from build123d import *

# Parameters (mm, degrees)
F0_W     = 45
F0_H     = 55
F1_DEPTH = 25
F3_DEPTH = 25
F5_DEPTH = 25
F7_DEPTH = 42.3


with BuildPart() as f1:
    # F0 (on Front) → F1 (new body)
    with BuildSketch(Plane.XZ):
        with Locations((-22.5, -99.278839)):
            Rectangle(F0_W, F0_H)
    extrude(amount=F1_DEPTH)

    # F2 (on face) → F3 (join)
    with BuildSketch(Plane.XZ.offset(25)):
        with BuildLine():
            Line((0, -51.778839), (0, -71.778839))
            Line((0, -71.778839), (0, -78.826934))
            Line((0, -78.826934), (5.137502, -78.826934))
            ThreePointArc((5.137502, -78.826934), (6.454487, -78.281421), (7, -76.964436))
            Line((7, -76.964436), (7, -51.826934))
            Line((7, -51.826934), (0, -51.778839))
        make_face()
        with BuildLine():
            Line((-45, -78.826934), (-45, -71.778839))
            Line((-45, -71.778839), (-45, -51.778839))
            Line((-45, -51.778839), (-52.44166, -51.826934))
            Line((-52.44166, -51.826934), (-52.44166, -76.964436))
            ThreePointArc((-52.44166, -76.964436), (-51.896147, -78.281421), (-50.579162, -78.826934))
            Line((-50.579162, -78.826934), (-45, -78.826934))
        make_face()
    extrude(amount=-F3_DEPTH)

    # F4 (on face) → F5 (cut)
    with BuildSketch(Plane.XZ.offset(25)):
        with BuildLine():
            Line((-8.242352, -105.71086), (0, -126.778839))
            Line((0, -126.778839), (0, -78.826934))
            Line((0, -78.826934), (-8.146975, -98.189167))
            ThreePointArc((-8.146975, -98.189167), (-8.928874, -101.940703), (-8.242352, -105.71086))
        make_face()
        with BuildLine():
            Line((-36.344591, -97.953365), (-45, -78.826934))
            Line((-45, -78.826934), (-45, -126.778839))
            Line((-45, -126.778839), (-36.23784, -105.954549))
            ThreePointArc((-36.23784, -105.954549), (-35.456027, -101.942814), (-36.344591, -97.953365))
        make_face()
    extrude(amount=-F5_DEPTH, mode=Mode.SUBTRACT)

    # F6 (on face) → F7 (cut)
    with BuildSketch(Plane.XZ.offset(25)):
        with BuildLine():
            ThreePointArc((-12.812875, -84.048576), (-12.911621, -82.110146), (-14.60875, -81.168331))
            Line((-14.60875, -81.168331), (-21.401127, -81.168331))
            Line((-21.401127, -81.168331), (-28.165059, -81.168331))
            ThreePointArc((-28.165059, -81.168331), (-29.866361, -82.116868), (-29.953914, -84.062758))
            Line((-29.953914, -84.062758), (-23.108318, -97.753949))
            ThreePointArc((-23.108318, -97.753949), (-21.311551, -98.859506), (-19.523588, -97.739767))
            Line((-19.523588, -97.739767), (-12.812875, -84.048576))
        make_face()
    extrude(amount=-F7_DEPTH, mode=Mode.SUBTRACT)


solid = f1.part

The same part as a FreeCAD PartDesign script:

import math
import FreeCAD as App
import Part
import Sketcher

doc = App.newDocument("Part")
params = doc.addObject("Spreadsheet::Sheet", "Params")
for row, (alias, value) in enumerate([
    ("sketch1_width", "45 mm"),
    ("sketch1_height", "55 mm"),
    ("pad1_length", "25 mm"),
    ("pad2_length", "25 mm"),
    ("sketch3_radius", "10.000001 mm"),
    ("pocket1_length", "25 mm"),
    ("sketch4_radius", "1.999999 mm"),
    ("pocket2_length", "42.3 mm"),
], start=1):
    params.set(f"A{row}", alias)
    params.set(f"B{row}", "=" + value)
    params.setAlias(f"B{row}", alias)

body = doc.addObject("PartDesign::Body", "Body")

sketch1 = doc.addObject("Sketcher::SketchObject", "Sketch")
body.addObject(sketch1)
sketch1.AttachmentSupport = (doc.XZ_Plane, [""])
sketch1.MapMode = "FlatFace"
sketch1.addGeometry(Part.LineSegment(App.Vector(-45, -72, 0), App.Vector(-45, -127, 0)), False)
sketch1.addGeometry(Part.LineSegment(App.Vector(-45, -127, 0), App.Vector(0, -127, 0)), False)
sketch1.addGeometry(Part.LineSegment(App.Vector(0, -127, 0), App.Vector(0, -72, 0)), False)
sketch1.addGeometry(Part.LineSegment(App.Vector(0, -72, 0), App.Vector(-45, -72, 0)), False)
sketch1.addConstraint(Sketcher.Constraint("Coincident", 0, 2, 1, 1))
sketch1.addConstraint(Sketcher.Constraint("Coincident", 1, 2, 2, 1))
sketch1.addConstraint(Sketcher.Constraint("Coincident", 2, 2, 3, 1))
sketch1.addConstraint(Sketcher.Constraint("Coincident", 3, 2, 0, 1))
sketch1.addConstraint(Sketcher.Constraint("Vertical", 0))
sketch1.addConstraint(Sketcher.Constraint("Horizontal", 1))
sketch1.addConstraint(Sketcher.Constraint("Vertical", 2))
sketch1.addConstraint(Sketcher.Constraint("Horizontal", 3))
sketch1.addConstraint(Sketcher.Constraint("PointOnObject", 1, 2, -2))
sketch1.addConstraint(Sketcher.Constraint("DistanceX", 1, 1, 1, 2, 45.0))
sketch1.addConstraint(Sketcher.Constraint("DistanceY", 0, 2, 0, 1, 55.0))
sketch1.addConstraint(Sketcher.Constraint("DistanceY", 0, 2, -1, 1, 126.778839))
sketch1.setExpression("Constraints[9]", "Params.sketch1_width")
sketch1.setExpression("Constraints[10]", "Params.sketch1_height")
pad1 = doc.addObject("PartDesign::Pad", "Pad")
body.addObject(pad1)
pad1.Profile = sketch1
pad1.setExpression("Length", "Params.pad1_length")

sketch2 = doc.addObject("Sketcher::SketchObject", "Sketch001")
body.addObject(sketch2)
sketch2.AttachmentSupport = (doc.XZ_Plane, [""])
sketch2.MapMode = "FlatFace"
sketch2.AttachmentOffset = App.Placement(App.Vector(0, 0, 25), App.Rotation())
sketch2.addGeometry(Part.LineSegment(App.Vector(0, -51.8, 0), App.Vector(0, -78.8, 0)), False)
sketch2.addGeometry(Part.LineSegment(App.Vector(0, -78.8, 0), App.Vector(5.1, -78.8, 0)), False)
sketch2.addGeometry(Part.ArcOfCircle(Part.Circle(App.Vector(5.1, -77, 0), App.Vector(0, 0, 1), 1.9), math.radians(-90), math.radians(0)), False)
sketch2.addGeometry(Part.LineSegment(App.Vector(7, -77, 0), App.Vector(7, -51.8, 0)), False)
sketch2.addGeometry(Part.LineSegment(App.Vector(7, -51.8, 0), App.Vector(0, -51.8, 0)), False)
sketch2.addGeometry(Part.LineSegment(App.Vector(-45, -78.8, 0), App.Vector(-45, -51.8, 0)), False)
sketch2.addGeometry(Part.LineSegment(App.Vector(-45, -51.8, 0), App.Vector(-52.4, -51.8, 0)), False)
sketch2.addGeometry(Part.LineSegment(App.Vector(-52.4, -51.8, 0), App.Vector(-52.4, -77, 0)), False)
sketch2.addGeometry(Part.ArcOfCircle(Part.Circle(App.Vector(-50.6, -77, 0), App.Vector(0, 0, 1), 1.9), math.radians(180), math.radians(270)), False)
sketch2.addGeometry(Part.LineSegment(App.Vector(-50.6, -78.8, 0), App.Vector(-45, -78.8, 0)), False)
sketch2.addConstraint(Sketcher.Constraint("Coincident", 0, 2, 1, 1))
sketch2.addConstraint(Sketcher.Constraint("Tangent", 1, 2, 2, 1))
sketch2.addConstraint(Sketcher.Constraint("Tangent", 2, 2, 3, 1))
sketch2.addConstraint(Sketcher.Constraint("Coincident", 3, 2, 4, 1))
sketch2.addConstraint(Sketcher.Constraint("Coincident", 4, 2, 0, 1))
sketch2.addConstraint(Sketcher.Constraint("Coincident", 5, 2, 6, 1))
sketch2.addConstraint(Sketcher.Constraint("Coincident", 6, 2, 7, 1))
sketch2.addConstraint(Sketcher.Constraint("Tangent", 7, 2, 8, 1))
sketch2.addConstraint(Sketcher.Constraint("Tangent", 8, 2, 9, 1))
sketch2.addConstraint(Sketcher.Constraint("Coincident", 9, 2, 5, 1))
sketch2.addConstraint(Sketcher.Constraint("Vertical", 0))
sketch2.addConstraint(Sketcher.Constraint("Horizontal", 1))
sketch2.addConstraint(Sketcher.Constraint("Vertical", 3))
sketch2.addConstraint(Sketcher.Constraint("Vertical", 5))
sketch2.addConstraint(Sketcher.Constraint("Vertical", 7))
sketch2.addConstraint(Sketcher.Constraint("Horizontal", 9))
sketch2.addConstraint(Sketcher.Constraint("Equal", 2, 8))
sketch2.addConstraint(Sketcher.Constraint("PointOnObject", 0, 2, -2))
sketch2.addConstraint(Sketcher.Constraint("Horizontal", 2, 3, 8, 3))
sketch2.addConstraint(Sketcher.Constraint("Horizontal", 4, 2, 5, 2))
sketch2.addConstraint(Sketcher.Constraint("Horizontal", 3, 2, 6, 2))
sketch2.addConstraint(Sketcher.Constraint("DistanceX", -1, 1, 2, 2, 7.0))
sketch2.addConstraint(Sketcher.Constraint("DistanceX", 5, 2, -1, 1, 45.0))
sketch2.addConstraint(Sketcher.Constraint("DistanceY", 1, 2, 3, 2, 27.0))
sketch2.addConstraint(Sketcher.Constraint("DistanceX", 1, 1, 1, 2, 5.137502))
sketch2.addConstraint(Sketcher.Constraint("DistanceX", 9, 1, 9, 2, 5.579162))
sketch2.addConstraint(Sketcher.Constraint("DistanceY", 0, 2, 0, 1, 27.048095))
sketch2.addConstraint(Sketcher.Constraint("DistanceY", 4, 2, -1, 1, 51.778839))
pad2 = doc.addObject("PartDesign::Pad", "Pad001")
body.addObject(pad2)
pad2.Profile = sketch2
pad2.setExpression("Length", "Params.pad2_length")
pad2.Reversed = True

sketch3 = doc.addObject("Sketcher::SketchObject", "Sketch002")
body.addObject(sketch3)
sketch3.AttachmentSupport = (doc.XZ_Plane, [""])
sketch3.MapMode = "FlatFace"
sketch3.AttachmentOffset = App.Placement(App.Vector(0, 0, 25), App.Rotation())
sketch3.addGeometry(Part.LineSegment(App.Vector(-8, -106, 0), App.Vector(0, -127, 0)), False)
sketch3.addGeometry(Part.LineSegment(App.Vector(0, -127, 0), App.Vector(0, -79, 0)), False)
sketch3.addGeometry(Part.LineSegment(App.Vector(0, -79, 0), App.Vector(-8, -98, 0)), False)
sketch3.addGeometry(Part.ArcOfCircle(Part.Circle(App.Vector(1, -102, 0), App.Vector(0, 0, 1), 10), math.radians(157), math.radians(201)), False)
sketch3.addGeometry(Part.LineSegment(App.Vector(-36, -98, 0), App.Vector(-45, -79, 0)), False)
sketch3.addGeometry(Part.LineSegment(App.Vector(-45, -79, 0), App.Vector(-45, -127, 0)), False)
sketch3.addGeometry(Part.LineSegment(App.Vector(-45, -127, 0), App.Vector(-36, -106, 0)), False)
sketch3.addGeometry(Part.ArcOfCircle(Part.Circle(App.Vector(-45, -102, 0), App.Vector(0, 0, 1), 10), math.radians(-23), math.radians(24)), False)
sketch3.addConstraint(Sketcher.Constraint("Coincident", 0, 2, 1, 1))
sketch3.addConstraint(Sketcher.Constraint("Coincident", 1, 2, 2, 1))
sketch3.addConstraint(Sketcher.Constraint("Tangent", 2, 2, 3, 1))
sketch3.addConstraint(Sketcher.Constraint("Tangent", 3, 2, 0, 1))
sketch3.addConstraint(Sketcher.Constraint("Coincident", 4, 2, 5, 1))
sketch3.addConstraint(Sketcher.Constraint("Coincident", 5, 2, 6, 1))
sketch3.addConstraint(Sketcher.Constraint("Tangent", 6, 2, 7, 1))
sketch3.addConstraint(Sketcher.Constraint("Tangent", 7, 2, 4, 1))
sketch3.addConstraint(Sketcher.Constraint("Vertical", 1))
sketch3.addConstraint(Sketcher.Constraint("Vertical", 5))
sketch3.addConstraint(Sketcher.Constraint("PointOnObject", 0, 2, -2))
sketch3.addConstraint(Sketcher.Constraint("Parallel", 2, 6))
sketch3.addConstraint(Sketcher.Constraint("Horizontal", 1, 2, 4, 2))
sketch3.addConstraint(Sketcher.Constraint("Horizontal", 0, 2, 5, 2))
sketch3.addConstraint(Sketcher.Constraint("Radius", 3, 10.000001))
sketch3.addConstraint(Sketcher.Constraint("DistanceX", 4, 2, -1, 1, 45.0))
sketch3.addConstraint(Sketcher.Constraint("Radius", 7, 9.999996))
sketch3.addConstraint(Sketcher.Constraint("DistanceX", 2, 2, 3, 3, 9.217298))
sketch3.addConstraint(Sketcher.Constraint("DistanceY", 2, 2, 7, 2, 0.235802))
sketch3.addConstraint(Sketcher.Constraint("Distance", 0, 22.622911))
sketch3.addConstraint(Sketcher.Constraint("Distance", 2, 21.00641))
sketch3.addConstraint(Sketcher.Constraint("DistanceY", 7, 3, -1, 1, 102.076221))
sketch3.setExpression("Constraints[14]", "Params.sketch3_radius")
pocket1 = doc.addObject("PartDesign::Pocket", "Pocket")
body.addObject(pocket1)
pocket1.Profile = sketch3
pocket1.setExpression("Length", "Params.pocket1_length")

sketch4 = doc.addObject("Sketcher::SketchObject", "Sketch003")
body.addObject(sketch4)
sketch4.AttachmentSupport = (doc.XZ_Plane, [""])
sketch4.MapMode = "FlatFace"
sketch4.AttachmentOffset = App.Placement(App.Vector(0, 0, 25), App.Rotation())
sketch4.addGeometry(Part.ArcOfCircle(Part.Circle(App.Vector(-14.6, -83.2, 0), App.Vector(0, 0, 1), 2), math.radians(-26), math.radians(90)), False)
sketch4.addGeometry(Part.LineSegment(App.Vector(-14.6, -81.2, 0), App.Vector(-28.2, -81.2, 0)), False)
sketch4.addGeometry(Part.ArcOfCircle(Part.Circle(App.Vector(-28.2, -83.2, 0), App.Vector(0, 0, 1), 2), math.radians(90), math.radians(207)), False)
sketch4.addGeometry(Part.LineSegment(App.Vector(-30, -84.1, 0), App.Vector(-23.1, -97.8, 0)), False)
sketch4.addGeometry(Part.ArcOfCircle(Part.Circle(App.Vector(-21.3, -96.9, 0), App.Vector(0, 0, 1), 2), math.radians(-153), math.radians(-26)), False)
sketch4.addGeometry(Part.LineSegment(App.Vector(-19.5, -97.7, 0), App.Vector(-12.8, -84, 0)), False)
sketch4.addConstraint(Sketcher.Constraint("Tangent", 0, 2, 1, 1))
sketch4.addConstraint(Sketcher.Constraint("Tangent", 1, 2, 2, 1))
sketch4.addConstraint(Sketcher.Constraint("Tangent", 2, 2, 3, 1))
sketch4.addConstraint(Sketcher.Constraint("Tangent", 3, 2, 4, 1))
sketch4.addConstraint(Sketcher.Constraint("Tangent", 4, 2, 5, 1))
sketch4.addConstraint(Sketcher.Constraint("Tangent", 5, 2, 0, 1))
sketch4.addConstraint(Sketcher.Constraint("Horizontal", 1))
sketch4.addConstraint(Sketcher.Constraint("Equal", 0, 2))
sketch4.addConstraint(Sketcher.Constraint("Equal", 2, 4))
sketch4.addConstraint(Sketcher.Constraint("Radius", 0, 1.999999))
sketch4.addConstraint(Sketcher.Constraint("DistanceX", 1, 2, 1, 1, 13.556309))
sketch4.addConstraint(Sketcher.Constraint("DistanceX", 0, 3, -1, 1, 14.608749))
sketch4.addConstraint(Sketcher.Constraint("DistanceY", 0, 3, -1, 1, 83.16833))
sketch4.addConstraint(Sketcher.Constraint("DistanceY", 4, 3, -1, 1, 96.859521))
sketch4.addConstraint(Sketcher.Constraint("DistanceY", 2, 2, -1, 1, 84.062758))
sketch4.setExpression("Constraints[9]", "Params.sketch4_radius")
pocket2 = doc.addObject("PartDesign::Pocket", "Pocket001")
body.addObject(pocket2)
pocket2.Profile = sketch4
pocket2.setExpression("Length", "Params.pocket2_length")

doc.recompute()
